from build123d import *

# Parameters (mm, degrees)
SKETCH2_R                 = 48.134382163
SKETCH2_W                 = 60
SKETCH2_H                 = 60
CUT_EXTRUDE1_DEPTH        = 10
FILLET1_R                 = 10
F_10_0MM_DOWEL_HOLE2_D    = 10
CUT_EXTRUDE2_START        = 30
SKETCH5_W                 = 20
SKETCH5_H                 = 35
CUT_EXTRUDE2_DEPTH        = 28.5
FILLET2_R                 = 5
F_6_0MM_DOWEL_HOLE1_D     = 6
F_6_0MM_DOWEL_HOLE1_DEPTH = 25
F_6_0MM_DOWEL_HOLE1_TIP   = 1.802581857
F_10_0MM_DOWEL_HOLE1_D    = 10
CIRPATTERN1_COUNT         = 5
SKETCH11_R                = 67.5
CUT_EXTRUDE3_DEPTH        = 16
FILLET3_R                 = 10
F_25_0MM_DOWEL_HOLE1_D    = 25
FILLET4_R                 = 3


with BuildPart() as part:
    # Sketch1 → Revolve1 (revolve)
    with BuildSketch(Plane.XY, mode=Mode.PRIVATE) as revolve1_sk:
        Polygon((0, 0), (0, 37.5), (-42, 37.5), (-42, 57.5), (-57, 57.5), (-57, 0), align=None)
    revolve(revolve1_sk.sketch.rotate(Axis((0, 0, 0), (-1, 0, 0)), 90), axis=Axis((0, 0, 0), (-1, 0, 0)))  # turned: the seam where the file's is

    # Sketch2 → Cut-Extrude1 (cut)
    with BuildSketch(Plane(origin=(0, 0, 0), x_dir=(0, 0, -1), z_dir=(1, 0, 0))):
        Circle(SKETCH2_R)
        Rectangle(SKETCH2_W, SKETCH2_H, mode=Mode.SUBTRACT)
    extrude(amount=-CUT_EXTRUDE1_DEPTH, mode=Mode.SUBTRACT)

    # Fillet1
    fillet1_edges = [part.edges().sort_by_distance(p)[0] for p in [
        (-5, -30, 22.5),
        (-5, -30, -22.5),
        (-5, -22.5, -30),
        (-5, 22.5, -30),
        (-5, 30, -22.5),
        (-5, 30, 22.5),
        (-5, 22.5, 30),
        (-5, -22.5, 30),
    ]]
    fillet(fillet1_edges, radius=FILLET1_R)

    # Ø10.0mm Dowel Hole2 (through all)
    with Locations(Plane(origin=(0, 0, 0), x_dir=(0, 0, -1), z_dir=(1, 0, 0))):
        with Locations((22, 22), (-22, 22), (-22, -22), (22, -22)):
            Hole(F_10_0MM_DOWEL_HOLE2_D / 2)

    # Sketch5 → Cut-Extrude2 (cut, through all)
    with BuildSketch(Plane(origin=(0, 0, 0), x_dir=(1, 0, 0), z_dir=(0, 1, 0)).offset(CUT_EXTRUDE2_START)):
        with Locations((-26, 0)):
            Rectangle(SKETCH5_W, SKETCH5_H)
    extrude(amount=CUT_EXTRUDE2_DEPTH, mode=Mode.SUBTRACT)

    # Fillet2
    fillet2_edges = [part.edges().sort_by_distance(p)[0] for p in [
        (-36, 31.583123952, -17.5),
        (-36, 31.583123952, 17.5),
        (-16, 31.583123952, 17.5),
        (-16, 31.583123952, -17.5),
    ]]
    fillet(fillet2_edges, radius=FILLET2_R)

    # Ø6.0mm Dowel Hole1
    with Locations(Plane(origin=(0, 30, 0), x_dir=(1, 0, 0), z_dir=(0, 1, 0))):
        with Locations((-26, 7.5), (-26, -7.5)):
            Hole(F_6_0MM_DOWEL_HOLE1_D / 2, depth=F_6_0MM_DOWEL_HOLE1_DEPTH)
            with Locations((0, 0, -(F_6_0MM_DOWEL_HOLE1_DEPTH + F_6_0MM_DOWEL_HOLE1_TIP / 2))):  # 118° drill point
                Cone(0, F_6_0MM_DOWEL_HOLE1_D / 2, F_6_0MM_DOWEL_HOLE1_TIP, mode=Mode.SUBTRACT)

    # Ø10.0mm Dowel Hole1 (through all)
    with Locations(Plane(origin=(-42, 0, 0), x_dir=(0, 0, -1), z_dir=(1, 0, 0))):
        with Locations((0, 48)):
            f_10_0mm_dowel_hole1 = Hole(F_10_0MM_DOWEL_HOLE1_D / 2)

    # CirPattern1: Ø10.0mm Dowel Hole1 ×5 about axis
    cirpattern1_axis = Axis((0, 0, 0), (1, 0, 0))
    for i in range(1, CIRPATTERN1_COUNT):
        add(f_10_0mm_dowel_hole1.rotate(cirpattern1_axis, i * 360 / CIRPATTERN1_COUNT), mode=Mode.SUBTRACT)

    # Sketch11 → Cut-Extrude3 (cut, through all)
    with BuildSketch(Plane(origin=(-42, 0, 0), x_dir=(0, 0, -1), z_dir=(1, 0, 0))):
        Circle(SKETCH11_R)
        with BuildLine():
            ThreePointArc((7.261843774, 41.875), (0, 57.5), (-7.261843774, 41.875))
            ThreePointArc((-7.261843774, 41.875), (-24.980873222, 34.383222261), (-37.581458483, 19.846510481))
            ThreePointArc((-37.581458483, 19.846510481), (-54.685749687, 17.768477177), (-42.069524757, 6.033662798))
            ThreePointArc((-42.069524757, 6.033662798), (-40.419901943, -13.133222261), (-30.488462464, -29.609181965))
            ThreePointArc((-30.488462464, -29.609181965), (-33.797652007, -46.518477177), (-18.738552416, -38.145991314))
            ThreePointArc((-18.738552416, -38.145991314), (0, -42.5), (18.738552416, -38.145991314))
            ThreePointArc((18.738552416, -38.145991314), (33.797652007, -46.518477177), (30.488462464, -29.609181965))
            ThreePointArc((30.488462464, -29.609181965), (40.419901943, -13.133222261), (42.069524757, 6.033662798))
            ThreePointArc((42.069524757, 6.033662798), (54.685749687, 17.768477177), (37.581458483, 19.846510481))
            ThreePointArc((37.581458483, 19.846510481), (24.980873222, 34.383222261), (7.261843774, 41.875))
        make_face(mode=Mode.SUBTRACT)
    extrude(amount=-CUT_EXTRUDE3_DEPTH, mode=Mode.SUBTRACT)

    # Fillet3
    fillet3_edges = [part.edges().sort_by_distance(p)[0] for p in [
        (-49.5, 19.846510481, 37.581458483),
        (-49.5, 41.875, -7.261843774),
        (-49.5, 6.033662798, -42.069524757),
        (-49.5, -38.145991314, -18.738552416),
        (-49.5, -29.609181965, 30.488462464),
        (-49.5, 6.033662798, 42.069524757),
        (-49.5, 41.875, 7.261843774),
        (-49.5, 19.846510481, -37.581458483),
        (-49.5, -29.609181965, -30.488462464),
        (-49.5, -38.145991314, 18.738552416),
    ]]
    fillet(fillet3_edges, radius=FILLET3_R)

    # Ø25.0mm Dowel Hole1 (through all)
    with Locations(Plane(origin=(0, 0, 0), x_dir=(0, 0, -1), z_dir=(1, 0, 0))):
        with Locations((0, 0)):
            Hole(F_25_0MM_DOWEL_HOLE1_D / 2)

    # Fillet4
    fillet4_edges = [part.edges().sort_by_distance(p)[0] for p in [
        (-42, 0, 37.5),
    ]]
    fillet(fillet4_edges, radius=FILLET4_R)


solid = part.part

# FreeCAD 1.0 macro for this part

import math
import FreeCAD as App
import Part
import Sketcher

V = App.Vector
Q = App.Units.Quantity


def edges_at(feature, points):
    """Names of the edges that pass closest to the given points."""
    edges = feature.Shape.Edges
    near = lambda p: min(range(len(edges)), key=lambda i: edges[i].distToShape(Part.Vertex(*p))[0])
    return sorted({f"Edge{near(p) + 1}" for p in points})

doc = App.newDocument("Part")
body = doc.addObject("PartDesign::Body", "Body")

# Sketch on XY plane
sketch1 = doc.addObject("Sketcher::SketchObject", "Sketch")
body.addObject(sketch1)
sketch1.AttachmentSupport = (doc.XY_Plane, [""])
sketch1.MapMode = "FlatFace"
sketch1.addGeometry([
    Part.LineSegment(V(0, 0, 0), V(0, 37.5, 0)),  # 0
    Part.LineSegment(V(0, 37.5, 0), V(-42, 37.5, 0)),  # 1
    Part.LineSegment(V(-42, 37.5, 0), V(-42, 57.5, 0)),  # 2
    Part.LineSegment(V(-42, 57.5, 0), V(-57, 57.5, 0)),  # 3
    Part.LineSegment(V(-57, 57.5, 0), V(-57, 0, 0)),  # 4
    Part.LineSegment(V(-57, 0, 0), V(0, 0, 0)),  # 5
], False)
sketch1.addConstraint([
    Sketcher.Constraint("Coincident", 0, 2, 1, 1),
    Sketcher.Constraint("Coincident", 1, 2, 2, 1),
    Sketcher.Constraint("Coincident", 2, 2, 3, 1),
    Sketcher.Constraint("Coincident", 3, 2, 4, 1),
    Sketcher.Constraint("Coincident", 4, 2, 5, 1),
    Sketcher.Constraint("Coincident", 5, 2, 0, 1),
    Sketcher.Constraint("Vertical", 0),
    Sketcher.Constraint("Horizontal", 1),
    Sketcher.Constraint("Vertical", 2),
    Sketcher.Constraint("Horizontal", 3),
    Sketcher.Constraint("Vertical", 4),
    Sketcher.Constraint("Horizontal", 5),
    Sketcher.Constraint("Coincident", 5, 2, -1, 1),
    Sketcher.Constraint("DistanceX", 1, 2, 1, 1, Q("42 mm")),
    Sketcher.Constraint("DistanceX", 3, 2, 3, 1, Q("15 mm")),
    Sketcher.Constraint("DistanceY", 2, 1, 2, 2, Q("20 mm")),
    Sketcher.Constraint("DistanceY", 0, 1, 0, 2, Q("37.5 mm")),
])
revolution = doc.addObject("PartDesign::Revolution", "Revolution")
body.addObject(revolution)
revolution.Profile = sketch1
revolution.ReferenceAxis = (sketch1, ["H_Axis"])
revolution.Angle = 360

# Sketch on YZ plane
sketch2 = doc.addObject("Sketcher::SketchObject", "Sketch001")
body.addObject(sketch2)
sketch2.AttachmentSupport = (doc.YZ_Plane, [""])
sketch2.MapMode = "FlatFace"
sketch2.addGeometry([
    Part.Circle(V(0, 0, 0), V(0, 0, 1), 48.134382),  # 0
    Part.LineSegment(V(-30, -30, 0), V(-30, 30, 0)),  # 1
    Part.LineSegment(V(-30, 30, 0), V(30, 30, 0)),  # 2
    Part.LineSegment(V(30, 30, 0), V(30, -30, 0)),  # 3
    Part.LineSegment(V(30, -30, 0), V(-30, -30, 0)),  # 4
], False)
sketch2.addConstraint([
    Sketcher.Constraint("Coincident", 1, 2, 2, 1),
    Sketcher.Constraint("Coincident", 2, 2, 3, 1),
    Sketcher.Constraint("Coincident", 3, 2, 4, 1),
    Sketcher.Constraint("Coincident", 4, 2, 1, 1),
    Sketcher.Constraint("Vertical", 1),
    Sketcher.Constraint("Horizontal", 2),
    Sketcher.Constraint("Vertical", 3),
    Sketcher.Constraint("Horizontal", 4),
    Sketcher.Constraint("Coincident", 0, 3, -1, 1),
    Sketcher.Constraint("Symmetric", 1, 2, 3, 2, -1, 1),
    Sketcher.Constraint("Equal", 4, 1),
    Sketcher.Constraint("DistanceX", 2, 1, 2, 2, Q("60 mm")),
    Sketcher.Constraint("Diameter", 0, Q("96.268764 mm")),
])
pocket1 = doc.addObject("PartDesign::Pocket", "Pocket")
body.addObject(pocket1)
pocket1.Profile = sketch2
pocket1.Length = 10
doc.recompute()

fillet = doc.addObject("PartDesign::Fillet", "Fillet")
body.addObject(fillet)
fillet.Base = (pocket1, edges_at(pocket1, [
    (-5, -30, 22.5),
    (-5, -30, -22.5),
    (-5, -22.5, -30),
    (-5, 22.5, -30),
    (-5, 30, -22.5),
    (-5, 30, 22.5),
    (-5, 22.5, 30),
    (-5, -22.5, 30),
]))
fillet.Radius = 10

# Sketch on YZ plane
sketch3 = doc.addObject("Sketcher::SketchObject", "Sketch002")
body.addObject(sketch3)
sketch3.AttachmentSupport = (doc.YZ_Plane, [""])
sketch3.MapMode = "FlatFace"
sketch3.addGeometry([
    Part.Circle(V(22, -22, 0), V(0, 0, 1), 5),
    Part.Circle(V(22, 22, 0), V(0, 0, 1), 5),
    Part.Circle(V(-22, 22, 0), V(0, 0, 1), 5),
    Part.Circle(V(-22, -22, 0), V(0, 0, 1), 5),
], False)
sketch3.addConstraint([
    Sketcher.Constraint("Equal", 0, 1),
    Sketcher.Constraint("Equal", 1, 2),
    Sketcher.Constraint("Equal", 2, 3),
    Sketcher.Constraint("Symmetric", 0, 3, 2, 3, -1, 1),
    Sketcher.Constraint("Symmetric", 1, 3, 3, 3, -1, 1),
    Sketcher.Constraint("Symmetric", 1, 3, 2, 3, -2),
    Sketcher.Constraint("Diameter", 0, Q("10 mm")),
    Sketcher.Constraint("DistanceX", -1, 1, 0, 3, Q("22 mm")),
    Sketcher.Constraint("DistanceY", 0, 3, -1, 1, Q("22 mm")),
])
doc.recompute()
hole = doc.addObject("PartDesign::Hole", "Hole")
body.addObject(hole)
hole.Profile = sketch3
hole.ThreadType = "None"
hole.Diameter = 10
hole.DepthType = "ThroughAll"

# Sketch on XZ plane
sketch4 = doc.addObject("Sketcher::SketchObject", "Sketch003")
body.addObject(sketch4)
sketch4.AttachmentSupport = (doc.XZ_Plane, [""])
sketch4.MapMode = "FlatFace"
sketch4.AttachmentOffset = App.Placement(V(0, 0, -30), App.Rotation())
sketch4.addGeometry([
    Part.LineSegment(V(-36, -17.5, 0), V(-36, 17.5, 0)),
    Part.LineSegment(V(-36, 17.5, 0), V(-16, 17.5, 0)),
    Part.LineSegment(V(-16, 17.5, 0), V(-16, -17.5, 0)),
    Part.LineSegment(V(-16, -17.5, 0), V(-36, -17.5, 0)),
], False)
sketch4.addConstraint([
    Sketcher.Constraint("Coincident", 0, 2, 1, 1),
    Sketcher.Constraint("Coincident", 1, 2, 2, 1),
    Sketcher.Constraint("Coincident", 2, 2, 3, 1),
    Sketcher.Constraint("Coincident", 3, 2, 0, 1),
    Sketcher.Constraint("Vertical", 0),
    Sketcher.Constraint("Horizontal", 1),
    Sketcher.Constraint("Vertical", 2),
    Sketcher.Constraint("Horizontal", 3),
    Sketcher.Constraint("DistanceX", 1, 1, 1, 2, Q("20 mm")),
    Sketcher.Constraint("DistanceY", 0, 1, 0, 2, Q("35 mm")),
    Sketcher.Constraint("DistanceX", 0, 2, -1, 1, Q("36 mm")),
    Sketcher.Constraint("DistanceY", -1, 1, 0, 2, Q("17.5 mm")),
])
pocket2 = doc.addObject("PartDesign::Pocket", "Pocket001")
body.addObject(pocket2)
pocket2.Profile = sketch4
pocket2.Type = "ThroughAll"
doc.recompute()

fillet2 = doc.addObject("PartDesign::Fillet", "Fillet001")
body.addObject(fillet2)
fillet2.Base = (pocket2, edges_at(pocket2, [
    (-36, 31.583, -17.5),
    (-36, 31.583, 17.5),
    (-16, 31.583, 17.5),
    (-16, 31.583, -17.5),
]))
fillet2.Radius = 5

# Sketch on XZ plane
sketch5 = doc.addObject("Sketcher::SketchObject", "Sketch004")
body.addObject(sketch5)
sketch5.AttachmentSupport = (doc.XZ_Plane, [""])
sketch5.MapMode = "FlatFace"
sketch5.AttachmentOffset = App.Placement(V(0, 0, -30), App.Rotation())
sketch5.addGeometry([
    Part.Circle(V(-26, -7.5, 0), V(0, 0, 1), 3),
    Part.Circle(V(-26, 7.5, 0), V(0, 0, 1), 3),
], False)
sketch5.addConstraint([
    Sketcher.Constraint("Equal", 0, 1),
    Sketcher.Constraint("Symmetric", 0, 3, 1, 3, -1),
    Sketcher.Constraint("Diameter", 0, Q("6 mm")),
    Sketcher.Constraint("DistanceX", 0, 3, -1, 1, Q("26 mm")),
    Sketcher.Constraint("DistanceY", 0, 3, 1, 3, Q("15 mm")),
])
doc.recompute()
hole2 = doc.addObject("PartDesign::Hole", "Hole001")
body.addObject(hole2)
hole2.Profile = sketch5
hole2.ThreadType = "None"
hole2.Diameter = 6
hole2.DepthType = "Dimension"
hole2.Depth = 25
hole2.DrillPoint = "Angled"
hole2.DrillPointAngle = 118
hole2.Reversed = True

# Sketch on YZ plane
sketch6 = doc.addObject("Sketcher::SketchObject", "Sketch005")
body.addObject(sketch6)
sketch6.AttachmentSupport = (doc.YZ_Plane, [""])
sketch6.MapMode = "FlatFace"
sketch6.AttachmentOffset = App.Placement(V(0, 0, -42), App.Rotation())
sketch6.addGeometry(Part.Circle(V(48, 0, 0), V(0, 0, 1), 5), False)
sketch6.addConstraint([
    Sketcher.Constraint("PointOnObject", 0, 3, -1),
    Sketcher.Constraint("Diameter", 0, Q("10 mm")),
    Sketcher.Constraint("DistanceX", -1, 1, 0, 3, Q("48 mm")),
])
doc.recompute()
hole3 = doc.addObject("PartDesign::Hole", "Hole002")
body.addObject(hole3)
hole3.Profile = sketch6
hole3.ThreadType = "None"
hole3.Diameter = 10
hole3.DepthType = "ThroughAll"
doc.recompute()

polarpattern = doc.addObject("PartDesign::PolarPattern", "PolarPattern")
body.addObject(polarpattern)
polarpattern.Originals = [hole3]
polarpattern.Axis = (doc.X_Axis, [""])
polarpattern.Angle = 360
polarpattern.Occurrences = 5
body.Tip = polarpattern

# Sketch on YZ plane
sketch7 = doc.addObject("Sketcher::SketchObject", "Sketch006")
body.addObject(sketch7)
sketch7.AttachmentSupport = (doc.YZ_Plane, [""])
sketch7.MapMode = "FlatFace"
sketch7.AttachmentOffset = App.Placement(V(0, 0, -42), App.Rotation())
sketch7.addGeometry([
    Part.Circle(V(0, 0, 0), V(0, 0, 1), 67.5),  # 0
    Part.ArcOfCircle(Part.Circle(V(48, 0, 0), V(0, 0, 1), 9.5), math.radians(-130.145948), math.radians(130.145948)),  # 1
    Part.ArcOfCircle(Part.Circle(V(0, 0, 0), V(0, 0, 1), 42.5), math.radians(-62.161773), math.radians(-9.838227)),  # 2
    Part.ArcOfCircle(Part.Circle(V(14.832816, -45.650713, 0), V(0, 0, 1), 9.5), math.radians(157.854052), math.radians(418.145948)),  # 3
    Part.ArcOfCircle(Part.Circle(V(0, 0, 0), V(0, 0, 1), 42.5), math.radians(-134.161773), math.radians(-81.838227)),  # 4
    Part.ArcOfCircle(Part.Circle(V(-38.832816, -28.213692, 0), V(0, 0, 1), 9.5), math.radians(85.854052), math.radians(346.145948)),  # 5
    Part.ArcOfCircle(Part.Circle(V(0, 0, 0), V(0, 0, 1), 42.5), math.radians(153.838227), math.radians(206.161773)),  # 6
    Part.ArcOfCircle(Part.Circle(V(-38.832816, 28.213692, 0), V(0, 0, 1), 9.5), math.radians(13.854052), math.radians(274.145948)),  # 7
    Part.ArcOfCircle(Part.Circle(V(0, 0, 0), V(0, 0, 1), 42.5), math.radians(81.838227), math.radians(134.161773)),  # 8
    Part.ArcOfCircle(Part.Circle(V(14.832816, 45.650713, 0), V(0, 0, 1), 9.5), math.radians(-58.145948), math.radians(202.145948)),  # 9
    Part.ArcOfCircle(Part.Circle(V(0, 0, 0), V(0, 0, 1), 42.5), math.radians(9.838227), math.radians(62.161773)),  # 10
], False)
sketch7.addConstraint([
    Sketcher.Constraint("Coincident", 1, 1, 2, 2),
    Sketcher.Constraint("Coincident", 2, 1, 3, 2),
    Sketcher.Constraint("Coincident", 3, 1, 4, 2),
    Sketcher.Constraint("Coincident", 4, 1, 5, 2),
    Sketcher.Constraint("Coincident", 5, 1, 6, 2),
    Sketcher.Constraint("Coincident", 6, 1, 7, 2),
    Sketcher.Constraint("Coincident", 7, 1, 8, 2),
    Sketcher.Constraint("Coincident", 8, 1, 9, 2),
    Sketcher.Constraint("Coincident", 9, 1, 10, 2),
    Sketcher.Constraint("Coincident", 10, 1, 1, 2),
    Sketcher.Constraint("Coincident", 0, 3, -1, 1),
    Sketcher.Constraint("Coincident", 2, 3, -1, 1),
    Sketcher.Constraint("Coincident", 4, 3, -1, 1),
    Sketcher.Constraint("Coincident", 6, 3, -1, 1),
    Sketcher.Constraint("Coincident", 8, 3, -1, 1),
    Sketcher.Constraint("Coincident", 10, 3, -1, 1),
    Sketcher.Constraint("Equal", 1, 3),
    Sketcher.Constraint("Equal", 2, 4),
    Sketcher.Constraint("Equal", 3, 5),
    Sketcher.Constraint("Equal", 4, 6),
    Sketcher.Constraint("Equal", 5, 7),
    Sketcher.Constraint("Equal", 6, 8),
    Sketcher.Constraint("Equal", 7, 9),
    Sketcher.Constraint("Equal", 8, 10),
    Sketcher.Constraint("Symmetric", 5, 3, 7, 3, -1),
    Sketcher.Constraint("Symmetric", 3, 3, 9, 3, -1),
    Sketcher.Constraint("PointOnObject", 1, 3, -1),
    Sketcher.Constraint("Diameter", 0, Q("135 mm")),
    Sketcher.Constraint("Radius", 1, Q("9.5 mm")),
    Sketcher.Constraint("Radius", 2, Q("42.5 mm")),
    Sketcher.Constraint("DistanceX", -1, 1, 1, 3, Q("48 mm")),
    Sketcher.Constraint("DistanceX", -1, 1, 2, 1, Q("19.84651 mm")),
    Sketcher.Constraint("DistanceX", 4, 1, -1, 1, Q("29.609182 mm")),
    Sketcher.Constraint("DistanceX", 5, 1, -1, 1, Q("38.145991 mm")),
    Sketcher.Constraint("DistanceX", 5, 3, 3, 3, Q("53.665631 mm")),
])
pocket3 = doc.addObject("PartDesign::Pocket", "Pocket002")
body.addObject(pocket3)
pocket3.Profile = sketch7
pocket3.Type = "ThroughAll"
doc.recompute()

fillet3 = doc.addObject("PartDesign::Fillet", "Fillet002")
body.addObject(fillet3)
fillet3.Base = (pocket3, edges_at(pocket3, [
    (-49.5, 19.847, 37.581),
    (-49.5, 41.875, -7.262),
    (-49.5, 6.034, -42.07),
    (-49.5, -38.146, -18.739),
    (-49.5, -29.609, 30.488),
    (-49.5, 6.034, 42.07),
    (-49.5, 41.875, 7.262),
    (-49.5, 19.847, -37.581),
    (-49.5, -29.609, -30.488),
    (-49.5, -38.146, 18.739),
]))
fillet3.Radius = 10

# Sketch on YZ plane
sketch8 = doc.addObject("Sketcher::SketchObject", "Sketch007")
body.addObject(sketch8)
sketch8.AttachmentSupport = (doc.YZ_Plane, [""])
sketch8.MapMode = "FlatFace"
sketch8.addGeometry(Part.Circle(V(0, 0, 0), V(0, 0, 1), 12.5), False)
sketch8.addConstraint([
    Sketcher.Constraint("Coincident", 0, 3, -1, 1),
    Sketcher.Constraint("Diameter", 0, Q("25 mm")),
])
doc.recompute()
hole4 = doc.addObject("PartDesign::Hole", "Hole003")
body.addObject(hole4)
hole4.Profile = sketch8
hole4.ThreadType = "None"
hole4.Diameter = 25
hole4.DepthType = "ThroughAll"
doc.recompute()

fillet4 = doc.addObject("PartDesign::Fillet", "Fillet003")
body.addObject(fillet4)
fillet4.Base = (hole4, edges_at(hole4, [(-42, 0, 37.5)]))
fillet4.Radius = 3

doc.recompute()
